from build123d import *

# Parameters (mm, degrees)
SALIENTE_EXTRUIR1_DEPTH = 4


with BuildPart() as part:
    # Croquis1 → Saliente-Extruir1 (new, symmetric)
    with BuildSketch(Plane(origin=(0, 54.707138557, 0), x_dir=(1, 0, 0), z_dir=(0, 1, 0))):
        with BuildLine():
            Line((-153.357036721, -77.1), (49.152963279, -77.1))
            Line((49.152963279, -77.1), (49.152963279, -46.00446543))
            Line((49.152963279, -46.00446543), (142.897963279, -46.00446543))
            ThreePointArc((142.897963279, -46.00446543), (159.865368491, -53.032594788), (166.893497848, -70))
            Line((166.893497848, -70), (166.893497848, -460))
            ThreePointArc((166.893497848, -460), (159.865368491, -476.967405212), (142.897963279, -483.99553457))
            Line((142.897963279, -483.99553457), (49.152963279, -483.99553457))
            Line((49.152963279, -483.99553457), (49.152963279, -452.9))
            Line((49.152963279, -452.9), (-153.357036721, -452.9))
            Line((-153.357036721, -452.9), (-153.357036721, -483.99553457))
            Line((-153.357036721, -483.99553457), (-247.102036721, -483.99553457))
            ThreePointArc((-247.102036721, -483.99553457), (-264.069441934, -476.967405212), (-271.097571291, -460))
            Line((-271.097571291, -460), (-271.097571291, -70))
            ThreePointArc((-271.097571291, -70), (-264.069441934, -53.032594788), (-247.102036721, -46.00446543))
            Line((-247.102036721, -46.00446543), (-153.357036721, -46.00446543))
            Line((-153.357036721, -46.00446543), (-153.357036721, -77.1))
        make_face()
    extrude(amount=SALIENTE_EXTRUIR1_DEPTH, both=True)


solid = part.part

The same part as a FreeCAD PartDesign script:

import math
import FreeCAD as App
import Part
import Sketcher
from FreeCAD import Vector

doc = App.newDocument("Part")
body = doc.addObject("PartDesign::Body", "Body")

# Sketch on XZ plane
sketch1 = body.newObject("Sketcher::SketchObject", "Sketch")
sketch1.AttachmentSupport = (doc.getObject("XZ_Plane"), [""])
sketch1.MapMode = "FlatFace"
sketch1.AttachmentOffset = App.Placement(Vector(0, 0, -54.707139), App.Rotation())
sketch1.addGeometry([
    Part.LineSegment(Vector(49.152963, 77.1, 0), Vector(-153.357037, 77.1, 0)),  # 0
    Part.LineSegment(Vector(-153.357037, 77.1, 0), Vector(-153.357037, 46.004465, 0)),  # 1
    Part.LineSegment(Vector(-153.357037, 46.004465, 0), Vector(-247.102037, 46.004465, 0)),  # 2
    Part.ArcOfCircle(Part.Circle(Vector(-247.102037, 70, 0), Vector(0, 0, 1), 23.995535), math.radians(180), math.radians(270)),  # 3
    Part.LineSegment(Vector(-271.097571, 70, 0), Vector(-271.097571, 460, 0)),  # 4
    Part.ArcOfCircle(Part.Circle(Vector(-247.102037, 460, 0), Vector(0, 0, 1), 23.995535), math.radians(90), math.radians(180)),  # 5
    Part.LineSegment(Vector(-247.102037, 483.995535, 0), Vector(-153.357037, 483.995535, 0)),  # 6
    Part.LineSegment(Vector(-153.357037, 483.995535, 0), Vector(-153.357037, 452.9, 0)),  # 7
    Part.LineSegment(Vector(-153.357037, 452.9, 0), Vector(49.152963, 452.9, 0)),  # 8
    Part.LineSegment(Vector(49.152963, 452.9, 0), Vector(49.152963, 483.995535, 0)),  # 9
    Part.LineSegment(Vector(49.152963, 483.995535, 0), Vector(142.897963, 483.995535, 0)),  # 10
    Part.ArcOfCircle(Part.Circle(Vector(142.897963, 460, 0), Vector(0, 0, 1), 23.995535), math.radians(0), math.radians(90)),  # 11
    Part.LineSegment(Vector(166.893498, 460, 0), Vector(166.893498, 70, 0)),  # 12
    Part.ArcOfCircle(Part.Circle(Vector(142.897963, 70, 0), Vector(0, 0, 1), 23.995535), math.radians(-90), math.radians(0)),  # 13
    Part.LineSegment(Vector(142.897963, 46.004465, 0), Vector(49.152963, 46.004465, 0)),  # 14
    Part.LineSegment(Vector(49.152963, 46.004465, 0), Vector(49.152963, 77.1, 0)),  # 15
], False)
sketch1.addConstraint([
    Sketcher.Constraint("Coincident", 0, 2, 1, 1),
    Sketcher.Constraint("Coincident", 1, 2, 2, 1),
    Sketcher.Constraint("Tangent", 2, 2, 3, 2),
    Sketcher.Constraint("Tangent", 3, 1, 4, 1),
    Sketcher.Constraint("Tangent", 4, 2, 5, 2),
    Sketcher.Constraint("Tangent", 5, 1, 6, 1),
    Sketcher.Constraint("Coincident", 6, 2, 7, 1),
    Sketcher.Constraint("Coincident", 7, 2, 8, 1),
    Sketcher.Constraint("Coincident", 8, 2, 9, 1),
    Sketcher.Constraint("Coincident", 9, 2, 10, 1),
    Sketcher.Constraint("Tangent", 10, 2, 11, 2),
    Sketcher.Constraint("Tangent", 11, 1, 12, 1),
    Sketcher.Constraint("Tangent", 12, 2, 13, 2),
    Sketcher.Constraint("Tangent", 13, 1, 14, 1),
    Sketcher.Constraint("Coincident", 14, 2, 15, 1),
    Sketcher.Constraint("Coincident", 15, 2, 0, 1),
    Sketcher.Constraint("Horizontal", 0),
    Sketcher.Constraint("Vertical", 1),
    Sketcher.Constraint("Horizontal", 2),
    Sketcher.Constraint("Vertical", 4),
    Sketcher.Constraint("Horizontal", 6),
    Sketcher.Constraint("Vertical", 7),
    Sketcher.Constraint("Horizontal", 8),
    Sketcher.Constraint("Vertical", 9),
    Sketcher.Constraint("Horizontal", 10),
    Sketcher.Constraint("Vertical", 12),
    Sketcher.Constraint("Horizontal", 14),
    Sketcher.Constraint("Vertical", 15),
    Sketcher.Constraint("Equal", 3, 5),
    Sketcher.Constraint("Equal", 5, 11),
    Sketcher.Constraint("Equal", 11, 13),
    Sketcher.Constraint("Horizontal", 5, 3, 11, 3),
    Sketcher.Constraint("Horizontal", 3, 3, 13, 3),
    Sketcher.Constraint("Vertical", 1, 2, 6, 2),
    Sketcher.Constraint("Vertical", 9, 2, 14, 2),
    Sketcher.Constraint("Equal", 6, 10),
    Sketcher.Constraint("Equal", 1, 7),
    Sketcher.Constraint("DistanceY", 4, 1, 4, 2, 390.0),
    Sketcher.Constraint("DistanceY", -1, 1, 3, 3, 70.0),
    Sketcher.Constraint("DistanceX", 5, 3, 11, 3, 390.0),
    Sketcher.Constraint("DistanceX", 0, 2, 0, 1, 202.51),
    Sketcher.Constraint("DistanceY", -1, 1, 0, 2, 77.1),
    Sketcher.Constraint("Radius", 3, 23.995535),
    Sketcher.Constraint("DistanceX", 3, 1, -1, 1, 271.097571),
])
pad1 = body.newObject("PartDesign::Pad", "Pad")
pad1.Profile = sketch1
pad1.Length = 8
pad1.Midplane = True

doc.recompute()
